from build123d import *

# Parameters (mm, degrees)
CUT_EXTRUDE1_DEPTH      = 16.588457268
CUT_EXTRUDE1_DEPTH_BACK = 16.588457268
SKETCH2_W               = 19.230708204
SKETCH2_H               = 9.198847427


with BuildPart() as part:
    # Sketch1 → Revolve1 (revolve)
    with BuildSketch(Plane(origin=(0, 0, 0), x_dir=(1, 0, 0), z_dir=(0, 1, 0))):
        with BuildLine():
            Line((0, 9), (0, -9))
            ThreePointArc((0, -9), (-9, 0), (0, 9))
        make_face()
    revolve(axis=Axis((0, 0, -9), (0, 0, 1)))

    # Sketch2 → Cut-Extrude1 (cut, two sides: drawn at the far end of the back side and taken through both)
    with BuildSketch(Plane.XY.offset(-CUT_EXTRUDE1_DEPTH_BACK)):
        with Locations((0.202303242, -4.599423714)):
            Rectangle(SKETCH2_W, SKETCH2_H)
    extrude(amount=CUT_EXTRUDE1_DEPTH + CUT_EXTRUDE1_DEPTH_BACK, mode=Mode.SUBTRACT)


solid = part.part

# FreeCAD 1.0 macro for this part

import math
import FreeCAD as App
import Part
import Sketcher

V = App.Vector

doc = App.newDocument("Part")
body = doc.addObject("PartDesign::Body", "Body")

# Sketch on XZ plane
sketch1 = body.newObject("Sketcher::SketchObject", "Sketch")
sketch1.AttachmentSupport = (doc.getObject("XZ_Plane"), [""])
sketch1.MapMode = "FlatFace"
sketch1.addGeometry([
    Part.LineSegment(V(0, 9, 0), V(0, -9, 0)),
    Part.ArcOfCircle(Part.Circle(V(0, 0, 0), V(0, 0, 1), 9), math.radians(90), math.radians(270)),
], False)
sketch1.addConstraint([
    Sketcher.Constraint("Coincident", 0, 1, 1, 1),
    Sketcher.Constraint("Coincident", 1, 2, 0, 2),
    Sketcher.Constraint("Vertical", 0),
    Sketcher.Constraint("Coincident", 1, 3, -1, 1),
    Sketcher.Constraint("PointOnObject", 0, 1, -2),
    Sketcher.Constraint("Radius", 1, 9.0),
])
revolution = body.newObject("PartDesign::Revolution", "Revolution")
revolution.Profile = sketch1
revolution.ReferenceAxis = (sketch1, ["V_Axis"])
revolution.Angle = 360

# Sketch on XY plane
sketch2 = body.newObject("Sketcher::SketchObject", "Sketch001")
sketch2.AttachmentSupport = (doc.getObject("XY_Plane"), [""])
sketch2.MapMode = "FlatFace"
sketch2.addGeometry([
    Part.LineSegment(V(-9.413051, 0, 0), V(-9.413051, -9.198847, 0)),
    Part.LineSegment(V(-9.413051, -9.198847, 0), V(9.817657, -9.198847, 0)),
    Part.LineSegment(V(9.817657, -9.198847, 0), V(9.817657, 0, 0)),
    Part.LineSegment(V(9.817657, 0, 0), V(-9.413051, 0, 0)),
], False)
sketch2.addConstraint([
    Sketcher.Constraint("Coincident", 0, 2, 1, 1),
    Sketcher.Constraint("Coincident", 1, 2, 2, 1),
    Sketcher.Constraint("Coincident", 2, 2, 3, 1),
    Sketcher.Constraint("Coincident", 3, 2, 0, 1),
    Sketcher.Constraint("Vertical", 0),
    Sketcher.Constraint("Horizontal", 1),
    Sketcher.Constraint("Vertical", 2),
    Sketcher.Constraint("Horizontal", 3),
    Sketcher.Constraint("PointOnObject", 2, 2, -1),
    Sketcher.Constraint("DistanceX", 1, 1, 1, 2, 19.230708),
    Sketcher.Constraint("DistanceY", 0, 2, 0, 1, 9.198847),
    Sketcher.Constraint("DistanceX", 0, 2, -1, 1, 9.413051),
])
pocket1 = body.newObject("PartDesign::Pocket", "Pocket")
pocket1.Profile = sketch2
pocket1.Type = "ThroughAll"
pocket1.Midplane = True

doc.recompute()
